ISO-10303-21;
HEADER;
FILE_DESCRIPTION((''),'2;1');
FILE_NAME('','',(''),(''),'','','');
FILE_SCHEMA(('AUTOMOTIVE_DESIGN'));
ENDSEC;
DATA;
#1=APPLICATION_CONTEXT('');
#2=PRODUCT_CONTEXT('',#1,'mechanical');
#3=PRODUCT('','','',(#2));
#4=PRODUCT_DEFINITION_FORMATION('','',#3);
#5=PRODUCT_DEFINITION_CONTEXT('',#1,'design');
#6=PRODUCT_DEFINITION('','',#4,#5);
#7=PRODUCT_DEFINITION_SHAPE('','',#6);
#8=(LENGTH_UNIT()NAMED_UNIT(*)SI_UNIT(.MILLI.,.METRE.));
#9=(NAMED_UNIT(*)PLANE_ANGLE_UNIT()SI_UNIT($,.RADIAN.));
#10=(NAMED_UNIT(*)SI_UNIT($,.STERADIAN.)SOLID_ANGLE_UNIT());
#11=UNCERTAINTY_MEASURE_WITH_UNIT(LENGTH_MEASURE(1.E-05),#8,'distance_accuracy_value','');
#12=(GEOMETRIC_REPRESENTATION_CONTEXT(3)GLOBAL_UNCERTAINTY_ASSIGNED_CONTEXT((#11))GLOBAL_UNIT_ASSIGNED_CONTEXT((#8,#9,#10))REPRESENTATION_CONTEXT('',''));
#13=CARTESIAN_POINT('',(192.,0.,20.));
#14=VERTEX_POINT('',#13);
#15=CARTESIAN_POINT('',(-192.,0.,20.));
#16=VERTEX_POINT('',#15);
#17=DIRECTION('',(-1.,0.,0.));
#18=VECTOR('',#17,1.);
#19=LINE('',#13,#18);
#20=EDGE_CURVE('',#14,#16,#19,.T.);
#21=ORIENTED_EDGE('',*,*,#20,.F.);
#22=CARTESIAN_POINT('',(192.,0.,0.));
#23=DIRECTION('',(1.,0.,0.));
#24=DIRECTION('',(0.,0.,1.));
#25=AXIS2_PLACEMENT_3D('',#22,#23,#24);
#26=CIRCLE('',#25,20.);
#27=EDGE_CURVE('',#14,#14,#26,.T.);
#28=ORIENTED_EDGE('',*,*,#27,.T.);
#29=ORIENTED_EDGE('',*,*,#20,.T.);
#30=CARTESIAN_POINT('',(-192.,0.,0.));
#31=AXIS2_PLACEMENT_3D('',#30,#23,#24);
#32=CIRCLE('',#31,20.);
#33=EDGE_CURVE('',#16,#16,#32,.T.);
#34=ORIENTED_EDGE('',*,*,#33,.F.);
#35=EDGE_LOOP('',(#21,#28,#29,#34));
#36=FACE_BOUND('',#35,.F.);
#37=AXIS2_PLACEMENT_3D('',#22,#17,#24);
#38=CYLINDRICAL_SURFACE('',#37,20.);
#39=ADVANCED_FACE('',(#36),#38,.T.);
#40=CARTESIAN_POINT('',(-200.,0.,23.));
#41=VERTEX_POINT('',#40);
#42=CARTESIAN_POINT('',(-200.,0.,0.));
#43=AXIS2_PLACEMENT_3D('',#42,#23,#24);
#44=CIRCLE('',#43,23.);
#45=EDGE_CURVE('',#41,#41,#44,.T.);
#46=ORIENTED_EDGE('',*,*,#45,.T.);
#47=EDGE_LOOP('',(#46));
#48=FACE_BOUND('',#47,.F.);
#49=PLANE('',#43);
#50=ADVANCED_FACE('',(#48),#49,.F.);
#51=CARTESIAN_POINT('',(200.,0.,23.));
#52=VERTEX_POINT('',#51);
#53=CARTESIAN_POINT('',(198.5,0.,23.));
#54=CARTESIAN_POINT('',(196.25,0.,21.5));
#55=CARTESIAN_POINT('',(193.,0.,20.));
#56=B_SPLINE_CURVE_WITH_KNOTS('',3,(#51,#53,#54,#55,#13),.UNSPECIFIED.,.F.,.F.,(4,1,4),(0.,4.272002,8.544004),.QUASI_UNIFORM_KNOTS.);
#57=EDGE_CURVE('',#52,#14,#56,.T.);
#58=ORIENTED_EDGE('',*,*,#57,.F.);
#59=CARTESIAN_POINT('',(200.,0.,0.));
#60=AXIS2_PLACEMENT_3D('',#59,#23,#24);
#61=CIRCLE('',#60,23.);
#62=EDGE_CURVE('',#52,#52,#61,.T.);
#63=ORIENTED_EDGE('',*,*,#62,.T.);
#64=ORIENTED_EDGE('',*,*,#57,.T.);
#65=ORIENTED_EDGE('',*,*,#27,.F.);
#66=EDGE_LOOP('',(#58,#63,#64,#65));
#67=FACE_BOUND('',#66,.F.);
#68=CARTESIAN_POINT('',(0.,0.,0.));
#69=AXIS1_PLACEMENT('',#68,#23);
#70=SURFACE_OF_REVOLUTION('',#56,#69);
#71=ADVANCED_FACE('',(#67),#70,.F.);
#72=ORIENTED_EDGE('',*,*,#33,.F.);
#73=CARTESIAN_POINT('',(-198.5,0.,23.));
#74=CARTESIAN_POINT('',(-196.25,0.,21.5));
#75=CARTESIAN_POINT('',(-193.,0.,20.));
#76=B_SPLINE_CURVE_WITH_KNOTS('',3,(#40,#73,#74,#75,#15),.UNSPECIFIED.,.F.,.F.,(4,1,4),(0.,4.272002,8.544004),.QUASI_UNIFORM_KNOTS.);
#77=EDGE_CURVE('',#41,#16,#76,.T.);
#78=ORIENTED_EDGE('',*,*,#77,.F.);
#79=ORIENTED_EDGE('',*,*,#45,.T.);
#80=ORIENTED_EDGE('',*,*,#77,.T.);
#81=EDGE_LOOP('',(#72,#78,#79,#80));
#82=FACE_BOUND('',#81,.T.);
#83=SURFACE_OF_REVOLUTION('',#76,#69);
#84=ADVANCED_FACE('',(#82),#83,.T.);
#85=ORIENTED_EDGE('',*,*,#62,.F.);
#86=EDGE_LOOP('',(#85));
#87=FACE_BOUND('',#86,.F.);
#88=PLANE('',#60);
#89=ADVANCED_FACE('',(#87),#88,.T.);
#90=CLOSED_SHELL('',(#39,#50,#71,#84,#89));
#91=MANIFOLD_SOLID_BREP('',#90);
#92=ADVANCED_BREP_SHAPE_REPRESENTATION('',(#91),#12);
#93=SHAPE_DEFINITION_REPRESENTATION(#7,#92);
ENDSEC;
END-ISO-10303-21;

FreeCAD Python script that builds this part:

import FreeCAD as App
import Part
import Sketcher
from FreeCAD import Vector

doc = App.newDocument("Part")
body = doc.addObject("PartDesign::Body", "Body")

sketch1 = body.newObject("Sketcher::SketchObject", "Sketch")
sketch1.AttachmentSupport = (doc.getObject("XZ_Plane"), [""])
sketch1.MapMode = "FlatFace"
sketch1.addGeometry([
    Part.LineSegment(Vector(-200, 23, 0), Vector(-200, 0, 0)),
    Part.LineSegment(Vector(-200, 0, 0), Vector(200, 0, 0)),
    Part.LineSegment(Vector(200, 0, 0), Vector(200, 23, 0)),
    Part.BSplineCurve([Vector(200, 23, 0), Vector(198.5, 23, 0), Vector(196.25, 21.5, 0), Vector(193, 20, 0), Vector(192, 20, 0)], [4, 1, 4], [0, 4.272002, 8.544004], False, 3, [1, 1, 1, 1, 1], False),
    Part.LineSegment(Vector(192, 20, 0), Vector(-192, 20, 0)),
    Part.BSplineCurve([Vector(-200, 23, 0), Vector(-198.5, 23, 0), Vector(-196.25, 21.5, 0), Vector(-193, 20, 0), Vector(-192, 20, 0)], [4, 1, 4], [0, 4.272002, 8.544004], False, 3, [1, 1, 1, 1, 1], False),
], False)
sketch1.addConstraint([
    Sketcher.Constraint("Block", 3),
    Sketcher.Constraint("Block", 5),
    Sketcher.Constraint("Coincident", 0, 2, 1, 1),
    Sketcher.Constraint("Coincident", 1, 2, 2, 1),
    Sketcher.Constraint("Coincident", 2, 2, 3, 1),
    Sketcher.Constraint("Coincident", 3, 2, 4, 1),
    Sketcher.Constraint("Coincident", 4, 2, 5, 2),
    Sketcher.Constraint("Coincident", 5, 1, 0, 1),
    Sketcher.Constraint("Vertical", 0),
    Sketcher.Constraint("Horizontal", 1),
    Sketcher.Constraint("Vertical", 2),
    Sketcher.Constraint("PointOnObject", 0, 2, -1),
])
revolution = body.newObject("PartDesign::Revolution", "Revolution")
revolution.Profile = sketch1
revolution.ReferenceAxis = (sketch1, ["H_Axis"])
revolution.Angle = 360

doc.recompute()
